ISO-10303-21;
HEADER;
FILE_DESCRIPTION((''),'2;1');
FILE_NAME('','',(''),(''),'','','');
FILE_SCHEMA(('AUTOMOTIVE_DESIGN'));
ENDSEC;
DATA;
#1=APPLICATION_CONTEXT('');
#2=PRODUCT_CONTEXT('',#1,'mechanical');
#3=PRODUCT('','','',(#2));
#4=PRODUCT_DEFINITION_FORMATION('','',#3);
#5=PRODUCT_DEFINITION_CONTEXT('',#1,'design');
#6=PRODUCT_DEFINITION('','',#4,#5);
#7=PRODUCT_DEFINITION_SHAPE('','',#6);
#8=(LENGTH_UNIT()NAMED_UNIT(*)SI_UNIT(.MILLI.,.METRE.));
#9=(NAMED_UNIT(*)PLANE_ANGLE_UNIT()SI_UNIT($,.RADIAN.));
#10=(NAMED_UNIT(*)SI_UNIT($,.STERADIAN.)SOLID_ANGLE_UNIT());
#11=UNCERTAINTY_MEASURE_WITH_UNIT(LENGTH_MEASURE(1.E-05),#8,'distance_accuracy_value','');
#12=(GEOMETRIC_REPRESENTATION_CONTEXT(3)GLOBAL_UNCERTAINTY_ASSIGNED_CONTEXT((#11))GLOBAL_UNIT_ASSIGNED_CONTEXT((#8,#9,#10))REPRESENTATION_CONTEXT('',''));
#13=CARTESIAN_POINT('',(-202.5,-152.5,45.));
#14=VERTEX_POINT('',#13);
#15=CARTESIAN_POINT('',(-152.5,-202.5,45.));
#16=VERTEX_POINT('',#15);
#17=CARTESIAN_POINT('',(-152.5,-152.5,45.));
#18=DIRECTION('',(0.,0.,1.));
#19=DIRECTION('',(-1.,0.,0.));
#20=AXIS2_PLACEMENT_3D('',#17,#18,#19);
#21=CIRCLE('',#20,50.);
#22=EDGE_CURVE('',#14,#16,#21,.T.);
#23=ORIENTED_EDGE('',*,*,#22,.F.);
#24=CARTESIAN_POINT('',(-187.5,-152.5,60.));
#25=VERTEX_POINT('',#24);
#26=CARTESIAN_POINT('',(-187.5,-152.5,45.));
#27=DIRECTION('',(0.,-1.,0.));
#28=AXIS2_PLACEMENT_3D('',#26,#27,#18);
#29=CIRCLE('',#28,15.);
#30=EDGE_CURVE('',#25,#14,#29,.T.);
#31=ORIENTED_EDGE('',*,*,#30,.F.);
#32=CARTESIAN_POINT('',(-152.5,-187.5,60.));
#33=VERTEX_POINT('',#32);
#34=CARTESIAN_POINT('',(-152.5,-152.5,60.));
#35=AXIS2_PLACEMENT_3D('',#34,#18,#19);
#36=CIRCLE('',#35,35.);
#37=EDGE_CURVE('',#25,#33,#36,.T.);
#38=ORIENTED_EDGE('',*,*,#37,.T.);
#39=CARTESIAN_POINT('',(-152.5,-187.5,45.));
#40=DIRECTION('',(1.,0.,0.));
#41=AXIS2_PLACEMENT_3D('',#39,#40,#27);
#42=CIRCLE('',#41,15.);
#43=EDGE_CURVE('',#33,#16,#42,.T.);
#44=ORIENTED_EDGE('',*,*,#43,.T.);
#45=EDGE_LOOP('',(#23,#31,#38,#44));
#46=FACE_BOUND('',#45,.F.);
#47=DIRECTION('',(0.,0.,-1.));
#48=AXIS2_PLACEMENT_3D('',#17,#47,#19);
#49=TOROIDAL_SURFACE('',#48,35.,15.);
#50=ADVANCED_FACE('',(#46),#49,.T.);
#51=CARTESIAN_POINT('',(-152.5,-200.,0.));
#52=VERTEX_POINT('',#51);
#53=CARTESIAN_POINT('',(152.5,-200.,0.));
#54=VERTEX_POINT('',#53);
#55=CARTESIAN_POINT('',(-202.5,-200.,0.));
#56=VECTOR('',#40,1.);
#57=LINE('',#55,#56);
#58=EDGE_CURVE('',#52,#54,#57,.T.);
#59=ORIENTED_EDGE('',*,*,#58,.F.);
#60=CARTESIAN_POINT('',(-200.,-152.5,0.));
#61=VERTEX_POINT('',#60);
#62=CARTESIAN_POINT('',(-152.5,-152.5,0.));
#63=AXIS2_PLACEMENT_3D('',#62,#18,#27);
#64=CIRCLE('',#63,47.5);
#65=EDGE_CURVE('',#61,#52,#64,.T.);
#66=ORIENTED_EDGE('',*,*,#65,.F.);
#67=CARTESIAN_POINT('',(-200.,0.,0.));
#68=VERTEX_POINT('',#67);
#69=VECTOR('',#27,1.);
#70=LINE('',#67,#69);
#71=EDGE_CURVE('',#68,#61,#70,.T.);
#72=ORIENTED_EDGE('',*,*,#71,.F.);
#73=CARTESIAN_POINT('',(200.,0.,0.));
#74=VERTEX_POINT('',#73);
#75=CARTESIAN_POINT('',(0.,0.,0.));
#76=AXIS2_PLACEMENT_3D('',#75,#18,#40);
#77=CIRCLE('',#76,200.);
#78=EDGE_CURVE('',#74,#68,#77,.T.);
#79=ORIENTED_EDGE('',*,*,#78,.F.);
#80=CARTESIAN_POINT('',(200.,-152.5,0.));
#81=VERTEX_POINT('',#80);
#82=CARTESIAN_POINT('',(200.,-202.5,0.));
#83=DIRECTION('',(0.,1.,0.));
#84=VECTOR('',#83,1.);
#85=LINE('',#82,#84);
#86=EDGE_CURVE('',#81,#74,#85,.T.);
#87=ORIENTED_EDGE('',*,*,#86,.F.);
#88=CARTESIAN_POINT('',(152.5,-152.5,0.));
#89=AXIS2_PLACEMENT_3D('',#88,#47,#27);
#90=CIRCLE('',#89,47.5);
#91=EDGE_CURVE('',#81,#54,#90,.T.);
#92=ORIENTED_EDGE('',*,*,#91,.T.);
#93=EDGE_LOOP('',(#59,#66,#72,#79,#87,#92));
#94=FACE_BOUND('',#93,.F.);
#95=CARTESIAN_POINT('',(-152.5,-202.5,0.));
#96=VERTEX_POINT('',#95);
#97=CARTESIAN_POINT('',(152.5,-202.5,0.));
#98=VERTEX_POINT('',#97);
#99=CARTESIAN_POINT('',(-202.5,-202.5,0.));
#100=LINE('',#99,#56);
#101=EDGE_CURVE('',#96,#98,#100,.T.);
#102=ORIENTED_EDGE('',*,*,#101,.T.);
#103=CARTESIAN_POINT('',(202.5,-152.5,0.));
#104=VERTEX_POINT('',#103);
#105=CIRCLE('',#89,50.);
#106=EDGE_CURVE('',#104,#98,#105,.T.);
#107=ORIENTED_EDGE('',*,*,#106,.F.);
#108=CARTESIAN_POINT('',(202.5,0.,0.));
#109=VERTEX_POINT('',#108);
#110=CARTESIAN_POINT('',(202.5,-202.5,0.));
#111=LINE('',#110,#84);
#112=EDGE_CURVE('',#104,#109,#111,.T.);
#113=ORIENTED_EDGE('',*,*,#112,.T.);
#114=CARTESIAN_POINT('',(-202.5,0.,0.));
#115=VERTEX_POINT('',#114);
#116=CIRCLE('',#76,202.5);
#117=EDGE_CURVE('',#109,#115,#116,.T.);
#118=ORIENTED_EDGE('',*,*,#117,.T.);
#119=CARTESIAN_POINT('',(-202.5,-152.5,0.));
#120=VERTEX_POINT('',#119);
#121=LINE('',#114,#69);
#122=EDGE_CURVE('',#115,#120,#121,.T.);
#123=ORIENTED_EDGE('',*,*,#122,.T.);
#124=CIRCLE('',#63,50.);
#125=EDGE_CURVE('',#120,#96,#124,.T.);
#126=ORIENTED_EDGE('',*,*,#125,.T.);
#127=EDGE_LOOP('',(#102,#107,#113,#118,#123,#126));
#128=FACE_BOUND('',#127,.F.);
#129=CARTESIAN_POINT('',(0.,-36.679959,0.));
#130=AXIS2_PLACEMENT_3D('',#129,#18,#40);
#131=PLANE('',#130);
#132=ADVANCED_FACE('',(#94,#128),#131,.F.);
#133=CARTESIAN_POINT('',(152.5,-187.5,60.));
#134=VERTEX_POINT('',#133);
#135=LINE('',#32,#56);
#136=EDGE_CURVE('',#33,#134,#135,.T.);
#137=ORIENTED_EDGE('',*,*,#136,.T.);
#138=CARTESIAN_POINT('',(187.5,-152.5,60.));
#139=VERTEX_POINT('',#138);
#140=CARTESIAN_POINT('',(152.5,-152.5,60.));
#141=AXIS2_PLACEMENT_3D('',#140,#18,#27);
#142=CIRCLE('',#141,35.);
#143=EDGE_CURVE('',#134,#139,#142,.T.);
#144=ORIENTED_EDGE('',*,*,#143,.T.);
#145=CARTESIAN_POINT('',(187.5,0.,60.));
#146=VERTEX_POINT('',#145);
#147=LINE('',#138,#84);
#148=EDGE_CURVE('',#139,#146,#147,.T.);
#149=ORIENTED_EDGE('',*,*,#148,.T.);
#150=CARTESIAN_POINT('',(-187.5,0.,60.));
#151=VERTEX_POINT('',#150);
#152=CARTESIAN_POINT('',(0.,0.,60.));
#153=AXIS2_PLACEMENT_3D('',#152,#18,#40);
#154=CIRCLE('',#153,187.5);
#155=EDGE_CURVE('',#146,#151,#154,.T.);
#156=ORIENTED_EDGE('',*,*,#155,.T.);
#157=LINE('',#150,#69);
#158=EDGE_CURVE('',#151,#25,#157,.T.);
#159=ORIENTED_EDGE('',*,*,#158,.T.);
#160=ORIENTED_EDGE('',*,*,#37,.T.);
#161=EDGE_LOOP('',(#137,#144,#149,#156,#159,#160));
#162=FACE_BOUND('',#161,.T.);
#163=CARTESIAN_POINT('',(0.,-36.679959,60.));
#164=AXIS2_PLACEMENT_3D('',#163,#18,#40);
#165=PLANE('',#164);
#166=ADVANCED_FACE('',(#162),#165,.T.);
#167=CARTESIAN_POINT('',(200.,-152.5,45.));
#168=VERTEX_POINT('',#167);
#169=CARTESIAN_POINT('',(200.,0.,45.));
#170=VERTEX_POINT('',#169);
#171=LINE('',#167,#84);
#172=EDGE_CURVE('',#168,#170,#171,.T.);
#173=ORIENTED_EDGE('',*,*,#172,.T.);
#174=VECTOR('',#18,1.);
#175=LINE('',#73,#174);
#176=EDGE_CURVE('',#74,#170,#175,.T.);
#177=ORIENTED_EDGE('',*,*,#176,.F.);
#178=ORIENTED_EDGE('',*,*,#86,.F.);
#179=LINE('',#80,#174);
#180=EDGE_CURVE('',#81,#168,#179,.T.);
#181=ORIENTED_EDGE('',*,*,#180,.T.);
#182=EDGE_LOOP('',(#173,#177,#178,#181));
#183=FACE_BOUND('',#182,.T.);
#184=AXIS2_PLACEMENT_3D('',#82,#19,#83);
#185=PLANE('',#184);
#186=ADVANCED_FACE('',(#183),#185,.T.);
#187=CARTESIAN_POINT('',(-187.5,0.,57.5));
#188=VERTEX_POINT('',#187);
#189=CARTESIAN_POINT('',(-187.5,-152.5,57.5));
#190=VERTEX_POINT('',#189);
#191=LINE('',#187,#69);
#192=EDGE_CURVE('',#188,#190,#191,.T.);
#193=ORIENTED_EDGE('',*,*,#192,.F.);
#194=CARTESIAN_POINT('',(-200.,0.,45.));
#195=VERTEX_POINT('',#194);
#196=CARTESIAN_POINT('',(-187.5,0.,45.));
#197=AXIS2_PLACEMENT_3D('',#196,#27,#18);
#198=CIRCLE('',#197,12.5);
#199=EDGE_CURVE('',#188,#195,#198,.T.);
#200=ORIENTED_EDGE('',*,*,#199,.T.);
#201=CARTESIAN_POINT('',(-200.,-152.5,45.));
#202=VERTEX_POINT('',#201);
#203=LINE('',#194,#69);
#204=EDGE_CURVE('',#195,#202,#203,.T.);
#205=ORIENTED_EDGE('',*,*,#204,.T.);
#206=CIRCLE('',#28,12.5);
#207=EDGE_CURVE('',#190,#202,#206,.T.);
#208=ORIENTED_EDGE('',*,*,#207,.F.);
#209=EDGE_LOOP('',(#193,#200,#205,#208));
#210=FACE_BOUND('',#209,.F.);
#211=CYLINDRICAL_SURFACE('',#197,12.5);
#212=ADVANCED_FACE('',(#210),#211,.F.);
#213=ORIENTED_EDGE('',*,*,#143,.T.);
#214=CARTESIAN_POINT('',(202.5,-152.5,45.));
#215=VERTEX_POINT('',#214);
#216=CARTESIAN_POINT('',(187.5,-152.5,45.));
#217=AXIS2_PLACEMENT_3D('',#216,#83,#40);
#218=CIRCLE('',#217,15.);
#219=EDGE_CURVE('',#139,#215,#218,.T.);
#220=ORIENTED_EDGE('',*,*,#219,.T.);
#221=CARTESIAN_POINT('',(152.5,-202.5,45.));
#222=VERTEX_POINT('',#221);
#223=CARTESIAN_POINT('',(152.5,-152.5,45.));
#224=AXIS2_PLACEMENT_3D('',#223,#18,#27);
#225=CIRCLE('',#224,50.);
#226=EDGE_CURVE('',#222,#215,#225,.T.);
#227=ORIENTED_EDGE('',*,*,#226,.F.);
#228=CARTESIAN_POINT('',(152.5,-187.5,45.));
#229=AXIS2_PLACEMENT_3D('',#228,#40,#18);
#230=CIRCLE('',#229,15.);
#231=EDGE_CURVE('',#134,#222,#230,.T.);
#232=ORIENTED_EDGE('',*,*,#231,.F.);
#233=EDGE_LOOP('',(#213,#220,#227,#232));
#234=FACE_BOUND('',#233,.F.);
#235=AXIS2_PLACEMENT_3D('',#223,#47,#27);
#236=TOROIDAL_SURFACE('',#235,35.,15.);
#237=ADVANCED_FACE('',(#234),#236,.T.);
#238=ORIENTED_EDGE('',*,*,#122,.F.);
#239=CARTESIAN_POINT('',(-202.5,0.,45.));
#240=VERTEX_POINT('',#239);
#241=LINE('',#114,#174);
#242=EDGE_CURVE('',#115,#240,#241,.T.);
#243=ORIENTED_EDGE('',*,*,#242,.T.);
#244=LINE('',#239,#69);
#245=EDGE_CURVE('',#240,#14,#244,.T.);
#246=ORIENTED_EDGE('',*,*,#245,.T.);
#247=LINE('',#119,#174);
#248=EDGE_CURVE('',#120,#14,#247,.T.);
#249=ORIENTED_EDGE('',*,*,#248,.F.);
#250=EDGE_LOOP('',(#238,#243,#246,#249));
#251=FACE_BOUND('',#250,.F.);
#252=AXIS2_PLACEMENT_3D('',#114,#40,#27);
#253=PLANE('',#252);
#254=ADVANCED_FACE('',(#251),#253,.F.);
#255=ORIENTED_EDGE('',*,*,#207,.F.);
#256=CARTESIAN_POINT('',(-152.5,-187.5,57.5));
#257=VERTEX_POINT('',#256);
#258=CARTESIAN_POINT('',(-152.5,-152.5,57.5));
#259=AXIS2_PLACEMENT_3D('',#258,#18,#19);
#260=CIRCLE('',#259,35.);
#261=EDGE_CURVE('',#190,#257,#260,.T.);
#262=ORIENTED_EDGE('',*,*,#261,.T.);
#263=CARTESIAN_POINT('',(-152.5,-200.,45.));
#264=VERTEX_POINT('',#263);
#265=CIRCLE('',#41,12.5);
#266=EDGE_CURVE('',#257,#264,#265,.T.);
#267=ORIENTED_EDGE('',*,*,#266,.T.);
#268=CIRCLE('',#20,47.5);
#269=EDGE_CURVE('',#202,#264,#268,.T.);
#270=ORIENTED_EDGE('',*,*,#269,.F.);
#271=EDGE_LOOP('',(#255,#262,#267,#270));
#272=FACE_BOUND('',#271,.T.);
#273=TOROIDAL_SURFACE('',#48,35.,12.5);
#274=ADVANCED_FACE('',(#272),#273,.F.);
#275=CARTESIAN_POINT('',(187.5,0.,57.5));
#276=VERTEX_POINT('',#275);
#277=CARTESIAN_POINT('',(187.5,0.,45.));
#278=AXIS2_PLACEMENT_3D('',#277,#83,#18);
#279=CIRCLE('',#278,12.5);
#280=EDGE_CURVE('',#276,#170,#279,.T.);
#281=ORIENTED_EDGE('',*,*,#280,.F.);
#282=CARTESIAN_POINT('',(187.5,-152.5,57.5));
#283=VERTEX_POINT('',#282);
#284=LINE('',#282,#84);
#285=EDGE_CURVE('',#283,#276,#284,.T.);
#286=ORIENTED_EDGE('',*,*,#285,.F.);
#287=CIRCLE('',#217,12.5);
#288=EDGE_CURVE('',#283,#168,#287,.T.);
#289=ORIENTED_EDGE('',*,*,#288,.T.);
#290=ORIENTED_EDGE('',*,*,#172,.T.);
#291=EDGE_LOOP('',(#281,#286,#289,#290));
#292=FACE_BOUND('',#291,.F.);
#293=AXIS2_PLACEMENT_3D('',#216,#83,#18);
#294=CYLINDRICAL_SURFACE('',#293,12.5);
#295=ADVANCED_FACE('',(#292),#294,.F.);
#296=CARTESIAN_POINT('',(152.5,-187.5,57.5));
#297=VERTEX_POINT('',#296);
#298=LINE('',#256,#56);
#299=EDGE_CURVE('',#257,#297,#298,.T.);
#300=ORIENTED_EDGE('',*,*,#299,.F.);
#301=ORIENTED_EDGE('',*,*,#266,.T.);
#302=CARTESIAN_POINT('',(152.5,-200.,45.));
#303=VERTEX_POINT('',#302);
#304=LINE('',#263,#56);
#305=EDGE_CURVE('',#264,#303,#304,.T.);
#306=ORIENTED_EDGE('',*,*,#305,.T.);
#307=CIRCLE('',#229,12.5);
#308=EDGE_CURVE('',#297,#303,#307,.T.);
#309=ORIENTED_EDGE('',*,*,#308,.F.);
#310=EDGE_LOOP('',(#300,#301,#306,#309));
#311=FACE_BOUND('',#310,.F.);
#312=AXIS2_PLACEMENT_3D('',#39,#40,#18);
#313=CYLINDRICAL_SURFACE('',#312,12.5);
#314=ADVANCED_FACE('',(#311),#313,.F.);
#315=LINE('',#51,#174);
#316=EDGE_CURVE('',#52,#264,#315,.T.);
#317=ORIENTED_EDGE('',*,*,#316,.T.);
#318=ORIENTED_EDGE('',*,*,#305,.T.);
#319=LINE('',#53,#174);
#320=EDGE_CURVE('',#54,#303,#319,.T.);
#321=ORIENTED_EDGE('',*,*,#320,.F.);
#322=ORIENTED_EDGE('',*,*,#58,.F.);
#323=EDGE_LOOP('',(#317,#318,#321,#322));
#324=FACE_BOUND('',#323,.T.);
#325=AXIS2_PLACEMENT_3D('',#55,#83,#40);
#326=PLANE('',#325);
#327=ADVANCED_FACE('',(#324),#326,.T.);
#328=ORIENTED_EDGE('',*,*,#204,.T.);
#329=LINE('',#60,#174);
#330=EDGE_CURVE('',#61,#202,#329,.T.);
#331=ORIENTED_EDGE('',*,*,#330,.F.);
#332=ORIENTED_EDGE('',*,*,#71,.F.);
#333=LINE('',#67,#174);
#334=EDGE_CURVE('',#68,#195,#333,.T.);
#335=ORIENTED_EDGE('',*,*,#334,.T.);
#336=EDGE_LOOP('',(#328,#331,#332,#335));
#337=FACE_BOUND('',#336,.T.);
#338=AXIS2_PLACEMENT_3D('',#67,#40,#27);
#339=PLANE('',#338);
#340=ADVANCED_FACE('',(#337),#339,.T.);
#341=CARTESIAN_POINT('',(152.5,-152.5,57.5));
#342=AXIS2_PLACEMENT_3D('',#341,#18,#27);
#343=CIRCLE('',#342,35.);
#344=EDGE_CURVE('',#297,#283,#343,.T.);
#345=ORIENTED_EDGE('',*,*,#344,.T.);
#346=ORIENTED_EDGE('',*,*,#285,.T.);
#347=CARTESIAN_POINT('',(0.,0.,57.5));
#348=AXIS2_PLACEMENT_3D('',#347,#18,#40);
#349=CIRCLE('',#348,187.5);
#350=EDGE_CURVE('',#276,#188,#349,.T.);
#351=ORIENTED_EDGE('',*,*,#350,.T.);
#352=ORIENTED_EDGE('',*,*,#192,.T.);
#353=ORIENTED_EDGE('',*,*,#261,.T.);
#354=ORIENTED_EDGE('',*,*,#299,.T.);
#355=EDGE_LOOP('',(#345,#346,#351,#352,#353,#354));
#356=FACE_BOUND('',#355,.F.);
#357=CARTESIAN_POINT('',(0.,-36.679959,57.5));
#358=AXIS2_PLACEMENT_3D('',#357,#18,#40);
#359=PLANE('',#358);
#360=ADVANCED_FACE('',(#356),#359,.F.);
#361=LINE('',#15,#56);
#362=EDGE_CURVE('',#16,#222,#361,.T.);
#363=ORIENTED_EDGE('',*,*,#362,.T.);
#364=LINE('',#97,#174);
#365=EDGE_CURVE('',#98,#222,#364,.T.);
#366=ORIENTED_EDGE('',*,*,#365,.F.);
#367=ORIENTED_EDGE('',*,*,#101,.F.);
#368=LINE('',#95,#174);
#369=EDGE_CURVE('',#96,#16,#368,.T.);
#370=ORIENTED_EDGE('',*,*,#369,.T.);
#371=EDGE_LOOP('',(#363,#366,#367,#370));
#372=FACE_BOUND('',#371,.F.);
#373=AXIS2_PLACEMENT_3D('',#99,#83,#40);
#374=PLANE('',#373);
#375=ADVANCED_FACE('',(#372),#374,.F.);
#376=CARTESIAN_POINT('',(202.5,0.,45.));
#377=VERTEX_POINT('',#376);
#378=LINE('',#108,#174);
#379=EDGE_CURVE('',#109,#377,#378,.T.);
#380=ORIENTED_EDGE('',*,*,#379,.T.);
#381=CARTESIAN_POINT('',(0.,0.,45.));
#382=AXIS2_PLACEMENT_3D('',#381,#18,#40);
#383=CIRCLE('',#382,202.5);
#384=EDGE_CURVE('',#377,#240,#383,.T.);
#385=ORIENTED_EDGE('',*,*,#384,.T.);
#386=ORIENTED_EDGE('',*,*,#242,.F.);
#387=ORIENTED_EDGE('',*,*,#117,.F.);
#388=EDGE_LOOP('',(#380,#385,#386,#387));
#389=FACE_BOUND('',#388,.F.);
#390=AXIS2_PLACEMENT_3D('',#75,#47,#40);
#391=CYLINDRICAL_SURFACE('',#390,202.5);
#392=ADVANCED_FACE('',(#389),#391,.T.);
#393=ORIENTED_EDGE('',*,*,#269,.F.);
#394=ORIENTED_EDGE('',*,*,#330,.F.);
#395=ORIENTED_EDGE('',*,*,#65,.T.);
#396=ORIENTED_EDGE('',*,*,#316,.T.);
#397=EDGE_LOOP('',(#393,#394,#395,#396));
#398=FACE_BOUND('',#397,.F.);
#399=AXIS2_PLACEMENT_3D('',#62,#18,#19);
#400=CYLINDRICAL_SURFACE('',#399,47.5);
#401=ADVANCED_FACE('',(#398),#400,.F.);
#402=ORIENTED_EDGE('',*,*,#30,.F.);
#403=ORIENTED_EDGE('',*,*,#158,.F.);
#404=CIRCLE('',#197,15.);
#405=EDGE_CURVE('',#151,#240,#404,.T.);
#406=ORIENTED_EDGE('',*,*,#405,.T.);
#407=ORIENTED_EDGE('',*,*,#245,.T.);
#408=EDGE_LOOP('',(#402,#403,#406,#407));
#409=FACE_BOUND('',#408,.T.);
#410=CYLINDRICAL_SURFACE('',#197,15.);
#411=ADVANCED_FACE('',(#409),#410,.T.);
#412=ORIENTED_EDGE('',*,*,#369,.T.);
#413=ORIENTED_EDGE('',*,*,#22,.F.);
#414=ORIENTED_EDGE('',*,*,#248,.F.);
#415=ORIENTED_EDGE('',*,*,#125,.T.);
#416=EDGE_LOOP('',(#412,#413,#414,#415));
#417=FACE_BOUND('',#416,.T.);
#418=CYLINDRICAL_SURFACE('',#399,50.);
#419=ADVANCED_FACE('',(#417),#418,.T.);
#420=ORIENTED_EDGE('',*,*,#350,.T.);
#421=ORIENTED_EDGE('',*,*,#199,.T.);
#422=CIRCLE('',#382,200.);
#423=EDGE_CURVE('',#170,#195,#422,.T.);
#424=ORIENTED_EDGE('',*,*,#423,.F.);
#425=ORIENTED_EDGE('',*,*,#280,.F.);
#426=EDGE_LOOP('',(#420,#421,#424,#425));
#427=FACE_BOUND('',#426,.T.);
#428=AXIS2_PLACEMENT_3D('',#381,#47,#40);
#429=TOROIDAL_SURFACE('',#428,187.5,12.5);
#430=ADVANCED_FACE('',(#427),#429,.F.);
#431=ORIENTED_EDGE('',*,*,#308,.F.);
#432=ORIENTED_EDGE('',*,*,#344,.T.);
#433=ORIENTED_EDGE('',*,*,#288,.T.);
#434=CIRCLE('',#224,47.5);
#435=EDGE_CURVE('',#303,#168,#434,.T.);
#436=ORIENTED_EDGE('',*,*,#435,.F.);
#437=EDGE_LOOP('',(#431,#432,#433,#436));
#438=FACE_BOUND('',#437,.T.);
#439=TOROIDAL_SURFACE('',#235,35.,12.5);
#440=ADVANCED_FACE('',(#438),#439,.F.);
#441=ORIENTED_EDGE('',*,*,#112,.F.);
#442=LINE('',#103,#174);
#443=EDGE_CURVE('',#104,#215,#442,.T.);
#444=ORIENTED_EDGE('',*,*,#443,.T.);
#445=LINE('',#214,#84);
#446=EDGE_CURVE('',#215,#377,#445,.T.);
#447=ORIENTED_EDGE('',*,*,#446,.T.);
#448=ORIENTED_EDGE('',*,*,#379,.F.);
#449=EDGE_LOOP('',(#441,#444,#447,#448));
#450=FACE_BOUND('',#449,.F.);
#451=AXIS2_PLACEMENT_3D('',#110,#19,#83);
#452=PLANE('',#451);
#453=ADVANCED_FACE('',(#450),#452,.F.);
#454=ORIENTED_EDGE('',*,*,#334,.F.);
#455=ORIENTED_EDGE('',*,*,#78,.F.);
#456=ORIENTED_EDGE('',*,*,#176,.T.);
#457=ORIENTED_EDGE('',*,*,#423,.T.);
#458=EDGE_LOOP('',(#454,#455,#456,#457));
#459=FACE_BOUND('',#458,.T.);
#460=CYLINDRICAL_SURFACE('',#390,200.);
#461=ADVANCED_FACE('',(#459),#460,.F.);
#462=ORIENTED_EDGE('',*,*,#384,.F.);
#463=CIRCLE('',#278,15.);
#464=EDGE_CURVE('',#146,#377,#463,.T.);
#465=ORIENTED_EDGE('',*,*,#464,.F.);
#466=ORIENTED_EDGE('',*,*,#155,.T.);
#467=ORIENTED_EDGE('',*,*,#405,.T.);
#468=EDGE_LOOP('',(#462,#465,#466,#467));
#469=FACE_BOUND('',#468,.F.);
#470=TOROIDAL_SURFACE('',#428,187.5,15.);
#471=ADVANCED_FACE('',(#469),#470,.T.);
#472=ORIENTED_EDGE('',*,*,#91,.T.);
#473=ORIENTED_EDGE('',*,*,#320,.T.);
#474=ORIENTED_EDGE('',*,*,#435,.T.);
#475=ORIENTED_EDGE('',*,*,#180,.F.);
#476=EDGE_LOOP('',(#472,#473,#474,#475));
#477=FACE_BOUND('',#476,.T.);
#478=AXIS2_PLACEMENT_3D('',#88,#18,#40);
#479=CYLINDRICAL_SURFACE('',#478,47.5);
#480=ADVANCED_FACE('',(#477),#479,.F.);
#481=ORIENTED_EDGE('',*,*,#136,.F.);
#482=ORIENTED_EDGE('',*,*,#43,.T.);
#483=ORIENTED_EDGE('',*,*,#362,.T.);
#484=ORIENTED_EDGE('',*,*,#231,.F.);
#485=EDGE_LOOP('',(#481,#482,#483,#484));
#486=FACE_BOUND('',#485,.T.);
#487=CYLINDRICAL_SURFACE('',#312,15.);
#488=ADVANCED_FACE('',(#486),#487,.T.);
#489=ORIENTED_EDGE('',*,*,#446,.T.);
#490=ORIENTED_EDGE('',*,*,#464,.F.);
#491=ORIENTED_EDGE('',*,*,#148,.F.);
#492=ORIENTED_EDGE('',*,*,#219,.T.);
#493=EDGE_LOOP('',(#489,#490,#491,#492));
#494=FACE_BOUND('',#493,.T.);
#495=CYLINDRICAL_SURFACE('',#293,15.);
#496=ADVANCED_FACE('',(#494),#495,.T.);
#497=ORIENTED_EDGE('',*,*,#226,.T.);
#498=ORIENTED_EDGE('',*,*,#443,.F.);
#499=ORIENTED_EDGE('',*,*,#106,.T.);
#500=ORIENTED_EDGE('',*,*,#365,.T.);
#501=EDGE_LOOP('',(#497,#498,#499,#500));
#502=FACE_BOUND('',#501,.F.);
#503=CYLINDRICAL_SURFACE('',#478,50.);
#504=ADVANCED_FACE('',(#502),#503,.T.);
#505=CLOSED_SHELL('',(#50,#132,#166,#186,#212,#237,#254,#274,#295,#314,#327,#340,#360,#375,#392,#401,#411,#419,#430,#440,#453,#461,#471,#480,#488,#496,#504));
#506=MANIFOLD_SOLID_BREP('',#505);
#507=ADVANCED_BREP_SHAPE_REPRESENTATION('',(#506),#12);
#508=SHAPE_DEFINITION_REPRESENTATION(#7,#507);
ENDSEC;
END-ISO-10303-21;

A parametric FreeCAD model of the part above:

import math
import FreeCAD as App
import Part
import Sketcher

V = App.Vector
Q = App.Units.Quantity


def edges_at(feature, points):
    """Names of the edges that pass closest to the given points."""
    edges = feature.Shape.Edges
    near = lambda p: min(range(len(edges)), key=lambda i: edges[i].distToShape(Part.Vertex(*p))[0])
    return sorted({f"Edge{near(p) + 1}" for p in points})


def faces_at(feature, points):
    """Names of the faces that lie closest to the given points."""
    faces = feature.Shape.Faces
    near = lambda p: min(range(len(faces)), key=lambda i: faces[i].distToShape(Part.Vertex(*p))[0])
    return sorted({f"Face{near(p) + 1}" for p in points})

doc = App.newDocument("Part")
params = doc.addObject("Spreadsheet::Sheet", "Params")
for row, (alias, value) in enumerate([
    ("sketch1_radius", "202.5 mm"),
    ("sketch1_height", "202.5 mm"),
    ("pad1_length", "60 mm"),
    ("fillet_radius", "50 mm"),
    ("fillet2_radius", "15 mm"),
    ("thickness_wall", "2.5 mm"),
], start=1):
    params.set(f"A{row}", alias)
    params.set(f"B{row}", "=" + value)
    params.setAlias(f"B{row}", alias)

body = doc.addObject("PartDesign::Body", "Body")

sketch1 = body.newObject("Sketcher::SketchObject", "Sketch")
sketch1.AttachmentSupport = (doc.getObject("XY_Plane"), [""])
sketch1.MapMode = "FlatFace"
sketch1.addGeometry(Part.LineSegment(V(202, -202, 0), V(202, 0, 0)), False)
sketch1.addGeometry(Part.ArcOfCircle(Part.Circle(V(0, 0, 0), V(0, 0, 1), 202), math.radians(0), math.radians(180)), False)
sketch1.addGeometry(Part.LineSegment(V(-202, 0, 0), V(-202, -202, 0)), False)
sketch1.addGeometry(Part.LineSegment(V(-202, -202, 0), V(202, -202, 0)), False)
sketch1.addConstraint(Sketcher.Constraint("Tangent", 0, 2, 1, 1))
sketch1.addConstraint(Sketcher.Constraint("Tangent", 1, 2, 2, 1))
sketch1.addConstraint(Sketcher.Constraint("Coincident", 2, 2, 3, 1))
sketch1.addConstraint(Sketcher.Constraint("Coincident", 3, 2, 0, 1))
sketch1.addConstraint(Sketcher.Constraint("Vertical", 0))
sketch1.addConstraint(Sketcher.Constraint("Vertical", 2))
sketch1.addConstraint(Sketcher.Constraint("Horizontal", 3))
sketch1.addConstraint(Sketcher.Constraint("Coincident", 1, 3, -1, 1))
sketch1.addConstraint(Sketcher.Constraint("Radius", 1, Q("202.5 mm")))
sketch1.addConstraint(Sketcher.Constraint("DistanceY", 0, 1, 0, 2, Q("202.5 mm")))
sketch1.setExpression("Constraints[8]", "Params.sketch1_radius")
sketch1.setExpression("Constraints[9]", "Params.sketch1_height")
pad1 = body.newObject("PartDesign::Pad", "Pad")
pad1.Profile = sketch1
pad1.setExpression("Length", "Params.pad1_length")
doc.recompute()

fillet = body.newObject("PartDesign::Fillet", "Fillet")
fillet.Base = (pad1, edges_at(pad1, [(202.5, -202.5, 30), (-202.5, -202.5, 30)]))
fillet.setExpression("Radius", "Params.fillet_radius")
doc.recompute()

fillet2 = body.newObject("PartDesign::Fillet", "Fillet001")
fillet2.Base = (fillet, edges_at(fillet, [
    (-202.5, -76.25, 60),
    (-187.855, -187.855, 60),
    (0, 202.5, 60),
    (0, -202.5, 60),
    (202.5, -76.25, 60),
    (187.855, -187.855, 60),
]))
fillet2.setExpression("Radius", "Params.fillet2_radius")
doc.recompute()

thickness = body.newObject("PartDesign::Thickness", "Thickness")
thickness.Base = (fillet2, faces_at(fillet2, [(0, 0, 0)]))
thickness.setExpression("Value", "Params.thickness_wall")
thickness.Reversed = True
thickness.Join = "Arc"

doc.recompute()
